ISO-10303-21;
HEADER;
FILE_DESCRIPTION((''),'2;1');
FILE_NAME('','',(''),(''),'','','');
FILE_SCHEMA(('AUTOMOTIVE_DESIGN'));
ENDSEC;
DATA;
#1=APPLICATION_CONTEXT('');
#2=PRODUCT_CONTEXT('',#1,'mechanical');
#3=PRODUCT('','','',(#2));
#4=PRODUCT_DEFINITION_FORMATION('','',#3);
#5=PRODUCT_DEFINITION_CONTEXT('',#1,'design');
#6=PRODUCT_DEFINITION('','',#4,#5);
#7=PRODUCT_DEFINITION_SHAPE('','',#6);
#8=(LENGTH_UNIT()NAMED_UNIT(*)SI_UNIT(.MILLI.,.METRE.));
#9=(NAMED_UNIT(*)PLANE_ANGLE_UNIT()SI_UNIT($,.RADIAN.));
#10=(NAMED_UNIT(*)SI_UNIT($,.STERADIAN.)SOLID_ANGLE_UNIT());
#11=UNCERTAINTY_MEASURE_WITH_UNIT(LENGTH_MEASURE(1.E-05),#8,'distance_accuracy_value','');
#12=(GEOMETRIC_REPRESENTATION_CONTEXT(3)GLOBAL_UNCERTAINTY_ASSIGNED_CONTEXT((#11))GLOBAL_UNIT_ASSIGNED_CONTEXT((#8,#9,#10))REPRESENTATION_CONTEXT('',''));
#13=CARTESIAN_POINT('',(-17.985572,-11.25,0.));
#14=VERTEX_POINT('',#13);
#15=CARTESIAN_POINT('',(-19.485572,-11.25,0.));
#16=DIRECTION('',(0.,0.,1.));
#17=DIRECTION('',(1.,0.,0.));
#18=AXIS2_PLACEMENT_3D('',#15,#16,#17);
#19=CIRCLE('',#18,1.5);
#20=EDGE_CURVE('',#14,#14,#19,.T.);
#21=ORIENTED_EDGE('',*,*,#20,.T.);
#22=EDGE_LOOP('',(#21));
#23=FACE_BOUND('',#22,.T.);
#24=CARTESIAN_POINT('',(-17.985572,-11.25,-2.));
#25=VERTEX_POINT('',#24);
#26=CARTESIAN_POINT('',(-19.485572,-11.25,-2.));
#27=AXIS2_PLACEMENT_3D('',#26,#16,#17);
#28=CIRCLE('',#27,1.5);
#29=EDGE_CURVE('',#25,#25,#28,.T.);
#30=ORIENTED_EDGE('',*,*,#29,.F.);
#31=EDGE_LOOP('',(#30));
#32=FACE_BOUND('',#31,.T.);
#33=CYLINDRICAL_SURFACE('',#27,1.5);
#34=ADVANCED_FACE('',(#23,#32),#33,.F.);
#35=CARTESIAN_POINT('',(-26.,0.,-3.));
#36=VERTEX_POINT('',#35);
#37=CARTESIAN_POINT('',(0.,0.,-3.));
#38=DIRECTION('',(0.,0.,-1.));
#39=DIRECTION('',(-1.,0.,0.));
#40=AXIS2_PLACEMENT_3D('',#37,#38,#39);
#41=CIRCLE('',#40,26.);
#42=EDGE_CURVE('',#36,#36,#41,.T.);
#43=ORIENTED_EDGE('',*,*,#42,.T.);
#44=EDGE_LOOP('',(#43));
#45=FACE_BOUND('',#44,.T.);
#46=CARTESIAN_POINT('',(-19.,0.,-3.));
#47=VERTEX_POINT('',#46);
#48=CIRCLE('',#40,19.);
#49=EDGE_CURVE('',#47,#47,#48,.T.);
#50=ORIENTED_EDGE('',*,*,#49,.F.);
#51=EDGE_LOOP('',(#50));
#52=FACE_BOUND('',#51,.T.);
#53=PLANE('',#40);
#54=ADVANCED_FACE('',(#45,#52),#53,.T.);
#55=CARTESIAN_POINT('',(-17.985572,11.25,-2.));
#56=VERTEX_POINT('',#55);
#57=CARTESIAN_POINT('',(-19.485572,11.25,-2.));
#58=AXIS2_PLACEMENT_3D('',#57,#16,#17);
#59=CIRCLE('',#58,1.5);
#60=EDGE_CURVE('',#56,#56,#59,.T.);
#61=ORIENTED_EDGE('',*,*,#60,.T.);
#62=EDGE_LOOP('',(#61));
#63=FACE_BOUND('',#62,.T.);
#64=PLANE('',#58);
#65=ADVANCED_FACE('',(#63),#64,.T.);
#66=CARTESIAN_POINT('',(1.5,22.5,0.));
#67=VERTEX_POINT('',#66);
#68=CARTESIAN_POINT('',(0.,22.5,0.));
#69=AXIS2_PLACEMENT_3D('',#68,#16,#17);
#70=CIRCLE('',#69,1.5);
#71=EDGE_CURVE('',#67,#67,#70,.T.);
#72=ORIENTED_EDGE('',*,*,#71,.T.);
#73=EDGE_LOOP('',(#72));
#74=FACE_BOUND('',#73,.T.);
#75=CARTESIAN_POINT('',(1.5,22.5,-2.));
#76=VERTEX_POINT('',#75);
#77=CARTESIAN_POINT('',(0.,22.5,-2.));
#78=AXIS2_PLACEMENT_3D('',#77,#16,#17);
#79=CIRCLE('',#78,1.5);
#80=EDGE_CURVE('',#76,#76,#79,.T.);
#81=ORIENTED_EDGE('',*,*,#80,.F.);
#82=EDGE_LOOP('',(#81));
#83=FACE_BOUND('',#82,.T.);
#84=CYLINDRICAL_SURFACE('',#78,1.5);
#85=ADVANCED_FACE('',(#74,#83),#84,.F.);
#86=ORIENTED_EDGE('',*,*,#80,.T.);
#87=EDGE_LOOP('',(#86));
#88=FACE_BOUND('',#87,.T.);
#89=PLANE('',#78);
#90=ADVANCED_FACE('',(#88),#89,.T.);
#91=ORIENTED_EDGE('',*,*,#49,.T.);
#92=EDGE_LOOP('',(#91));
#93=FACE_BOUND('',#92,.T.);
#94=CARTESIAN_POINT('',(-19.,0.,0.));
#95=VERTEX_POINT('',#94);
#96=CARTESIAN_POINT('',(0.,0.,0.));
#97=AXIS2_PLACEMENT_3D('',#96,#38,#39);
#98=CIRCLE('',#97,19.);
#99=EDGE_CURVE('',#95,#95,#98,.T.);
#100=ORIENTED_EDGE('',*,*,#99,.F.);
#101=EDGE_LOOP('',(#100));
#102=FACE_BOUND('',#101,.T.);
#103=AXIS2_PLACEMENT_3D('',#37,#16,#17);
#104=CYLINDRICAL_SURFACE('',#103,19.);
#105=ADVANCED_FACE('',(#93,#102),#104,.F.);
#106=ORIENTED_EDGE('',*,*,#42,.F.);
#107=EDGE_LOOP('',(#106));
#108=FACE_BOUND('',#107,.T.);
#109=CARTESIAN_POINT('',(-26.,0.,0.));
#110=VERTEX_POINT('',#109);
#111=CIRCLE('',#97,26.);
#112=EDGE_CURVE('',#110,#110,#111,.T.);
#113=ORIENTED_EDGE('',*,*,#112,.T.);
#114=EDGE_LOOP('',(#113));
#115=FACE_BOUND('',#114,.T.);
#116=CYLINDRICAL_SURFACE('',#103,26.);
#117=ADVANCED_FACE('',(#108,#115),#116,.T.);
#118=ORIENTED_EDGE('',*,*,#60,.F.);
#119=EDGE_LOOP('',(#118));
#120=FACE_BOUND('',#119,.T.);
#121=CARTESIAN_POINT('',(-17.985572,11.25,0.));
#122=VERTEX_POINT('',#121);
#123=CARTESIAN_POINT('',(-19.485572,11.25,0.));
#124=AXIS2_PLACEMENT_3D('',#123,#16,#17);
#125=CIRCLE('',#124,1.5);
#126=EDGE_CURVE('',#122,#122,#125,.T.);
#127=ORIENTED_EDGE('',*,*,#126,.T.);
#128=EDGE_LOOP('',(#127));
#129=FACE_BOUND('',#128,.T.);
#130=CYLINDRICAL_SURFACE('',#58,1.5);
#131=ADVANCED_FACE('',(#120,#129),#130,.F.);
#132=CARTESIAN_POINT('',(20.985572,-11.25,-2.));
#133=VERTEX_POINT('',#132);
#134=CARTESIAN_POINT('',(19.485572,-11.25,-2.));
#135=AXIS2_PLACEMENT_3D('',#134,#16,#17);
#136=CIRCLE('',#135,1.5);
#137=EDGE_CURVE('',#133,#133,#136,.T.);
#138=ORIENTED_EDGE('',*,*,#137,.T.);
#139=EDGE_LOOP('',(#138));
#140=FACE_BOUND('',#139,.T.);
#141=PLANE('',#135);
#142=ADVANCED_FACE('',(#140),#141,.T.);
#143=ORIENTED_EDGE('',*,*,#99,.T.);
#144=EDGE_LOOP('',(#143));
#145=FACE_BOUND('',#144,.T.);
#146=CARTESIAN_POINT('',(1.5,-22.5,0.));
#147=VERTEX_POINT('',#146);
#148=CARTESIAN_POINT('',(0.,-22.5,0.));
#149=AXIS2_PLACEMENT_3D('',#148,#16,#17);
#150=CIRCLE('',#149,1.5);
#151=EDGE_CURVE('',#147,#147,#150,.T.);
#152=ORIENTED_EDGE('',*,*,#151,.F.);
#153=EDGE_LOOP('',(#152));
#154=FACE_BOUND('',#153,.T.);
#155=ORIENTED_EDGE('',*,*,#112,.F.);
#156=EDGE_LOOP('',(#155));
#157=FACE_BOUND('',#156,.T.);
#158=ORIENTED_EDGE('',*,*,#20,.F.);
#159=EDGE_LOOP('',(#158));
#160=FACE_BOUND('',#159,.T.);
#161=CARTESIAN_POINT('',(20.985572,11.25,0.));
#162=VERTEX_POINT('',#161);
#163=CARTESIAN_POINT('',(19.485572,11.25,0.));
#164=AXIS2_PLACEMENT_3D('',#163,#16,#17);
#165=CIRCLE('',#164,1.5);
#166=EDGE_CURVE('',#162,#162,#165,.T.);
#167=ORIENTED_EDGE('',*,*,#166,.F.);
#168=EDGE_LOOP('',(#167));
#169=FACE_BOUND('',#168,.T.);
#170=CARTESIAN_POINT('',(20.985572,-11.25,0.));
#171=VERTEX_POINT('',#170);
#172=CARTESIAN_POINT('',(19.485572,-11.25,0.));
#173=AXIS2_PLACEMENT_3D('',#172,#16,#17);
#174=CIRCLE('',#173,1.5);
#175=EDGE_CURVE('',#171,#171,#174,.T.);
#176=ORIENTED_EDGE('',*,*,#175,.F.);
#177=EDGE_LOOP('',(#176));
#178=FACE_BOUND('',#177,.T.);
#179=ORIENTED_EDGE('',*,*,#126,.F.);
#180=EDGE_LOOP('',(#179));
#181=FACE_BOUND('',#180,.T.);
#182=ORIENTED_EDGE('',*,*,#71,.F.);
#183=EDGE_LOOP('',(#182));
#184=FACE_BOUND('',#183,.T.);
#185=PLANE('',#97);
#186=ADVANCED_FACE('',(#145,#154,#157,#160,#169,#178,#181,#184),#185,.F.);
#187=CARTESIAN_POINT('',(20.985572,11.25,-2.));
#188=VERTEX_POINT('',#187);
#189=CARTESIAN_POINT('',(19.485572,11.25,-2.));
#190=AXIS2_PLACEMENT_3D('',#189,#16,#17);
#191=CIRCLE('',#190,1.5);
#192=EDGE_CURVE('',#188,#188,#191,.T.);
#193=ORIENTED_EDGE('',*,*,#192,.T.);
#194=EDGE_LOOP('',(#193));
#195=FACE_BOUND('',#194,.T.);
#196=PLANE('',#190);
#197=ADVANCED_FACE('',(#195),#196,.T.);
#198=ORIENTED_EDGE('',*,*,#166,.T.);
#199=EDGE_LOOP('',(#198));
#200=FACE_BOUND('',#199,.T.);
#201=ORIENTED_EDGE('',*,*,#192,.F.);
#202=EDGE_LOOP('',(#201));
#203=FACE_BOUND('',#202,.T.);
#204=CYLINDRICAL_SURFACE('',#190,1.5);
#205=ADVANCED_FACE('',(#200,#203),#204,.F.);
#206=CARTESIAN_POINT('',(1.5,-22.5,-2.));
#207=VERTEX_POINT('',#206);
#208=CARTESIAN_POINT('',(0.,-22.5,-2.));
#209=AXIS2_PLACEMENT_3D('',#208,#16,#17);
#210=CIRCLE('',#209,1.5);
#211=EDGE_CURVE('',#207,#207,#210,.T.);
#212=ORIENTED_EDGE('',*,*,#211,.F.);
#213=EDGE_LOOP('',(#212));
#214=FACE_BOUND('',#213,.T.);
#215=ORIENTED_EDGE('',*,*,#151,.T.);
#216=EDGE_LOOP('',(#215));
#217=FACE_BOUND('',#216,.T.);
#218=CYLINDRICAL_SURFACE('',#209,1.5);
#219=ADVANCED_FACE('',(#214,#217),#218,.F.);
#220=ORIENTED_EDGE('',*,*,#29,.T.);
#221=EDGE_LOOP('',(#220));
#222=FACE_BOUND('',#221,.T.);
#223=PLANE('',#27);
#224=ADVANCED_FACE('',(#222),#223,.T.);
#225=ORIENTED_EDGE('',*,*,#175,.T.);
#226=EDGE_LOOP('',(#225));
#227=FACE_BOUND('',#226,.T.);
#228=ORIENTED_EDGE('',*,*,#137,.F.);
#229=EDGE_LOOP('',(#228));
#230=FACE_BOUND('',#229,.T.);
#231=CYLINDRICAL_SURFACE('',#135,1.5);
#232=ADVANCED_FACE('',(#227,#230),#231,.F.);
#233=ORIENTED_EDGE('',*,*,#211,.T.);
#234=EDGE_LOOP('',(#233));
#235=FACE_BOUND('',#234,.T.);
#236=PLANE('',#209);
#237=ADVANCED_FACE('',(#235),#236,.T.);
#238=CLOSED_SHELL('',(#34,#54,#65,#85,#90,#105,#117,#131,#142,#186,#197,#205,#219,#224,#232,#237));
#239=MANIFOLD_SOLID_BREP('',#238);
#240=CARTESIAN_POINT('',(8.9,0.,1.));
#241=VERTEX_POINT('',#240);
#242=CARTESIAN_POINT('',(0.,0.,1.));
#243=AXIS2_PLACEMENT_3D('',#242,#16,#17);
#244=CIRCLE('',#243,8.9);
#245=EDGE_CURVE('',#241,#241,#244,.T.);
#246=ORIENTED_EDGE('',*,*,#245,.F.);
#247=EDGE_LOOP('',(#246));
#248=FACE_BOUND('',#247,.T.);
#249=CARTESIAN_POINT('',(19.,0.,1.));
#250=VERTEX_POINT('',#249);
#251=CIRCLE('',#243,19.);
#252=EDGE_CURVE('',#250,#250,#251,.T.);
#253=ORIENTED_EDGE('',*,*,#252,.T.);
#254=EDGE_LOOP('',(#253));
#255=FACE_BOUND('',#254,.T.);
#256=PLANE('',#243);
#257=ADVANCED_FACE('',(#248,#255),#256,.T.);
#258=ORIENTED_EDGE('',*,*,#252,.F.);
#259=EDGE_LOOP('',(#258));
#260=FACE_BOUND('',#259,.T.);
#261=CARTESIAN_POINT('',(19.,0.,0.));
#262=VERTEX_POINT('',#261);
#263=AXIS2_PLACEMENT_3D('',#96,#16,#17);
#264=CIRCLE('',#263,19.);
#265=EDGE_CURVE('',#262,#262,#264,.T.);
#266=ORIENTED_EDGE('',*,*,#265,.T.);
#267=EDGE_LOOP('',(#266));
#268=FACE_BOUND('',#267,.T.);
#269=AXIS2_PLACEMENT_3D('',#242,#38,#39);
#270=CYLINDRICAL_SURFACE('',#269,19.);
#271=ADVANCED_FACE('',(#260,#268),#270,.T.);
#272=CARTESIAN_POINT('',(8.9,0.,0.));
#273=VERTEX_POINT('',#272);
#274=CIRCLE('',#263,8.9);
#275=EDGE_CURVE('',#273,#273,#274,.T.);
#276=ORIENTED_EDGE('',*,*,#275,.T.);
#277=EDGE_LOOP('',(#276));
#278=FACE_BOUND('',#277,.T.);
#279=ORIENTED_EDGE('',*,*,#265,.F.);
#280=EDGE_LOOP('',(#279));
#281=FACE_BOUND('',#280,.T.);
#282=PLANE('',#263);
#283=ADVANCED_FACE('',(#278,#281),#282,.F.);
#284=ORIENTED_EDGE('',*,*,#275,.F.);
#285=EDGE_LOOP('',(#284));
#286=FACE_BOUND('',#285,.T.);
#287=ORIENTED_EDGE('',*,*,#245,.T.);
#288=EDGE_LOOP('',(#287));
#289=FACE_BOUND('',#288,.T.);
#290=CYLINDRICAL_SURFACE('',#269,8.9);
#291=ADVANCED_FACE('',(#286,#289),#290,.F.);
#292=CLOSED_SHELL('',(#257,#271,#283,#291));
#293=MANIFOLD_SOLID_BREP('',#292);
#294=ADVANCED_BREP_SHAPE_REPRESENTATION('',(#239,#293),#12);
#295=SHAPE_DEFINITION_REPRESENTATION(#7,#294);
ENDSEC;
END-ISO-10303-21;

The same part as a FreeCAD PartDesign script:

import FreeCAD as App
import Part
import Sketcher
from FreeCAD import Vector
Q = App.Units.Quantity

doc = App.newDocument("Part")
body = doc.addObject("PartDesign::Body", "Body")

# Sketch on XY plane
sketch1 = body.newObject("Sketcher::SketchObject", "Sketch")
sketch1.AttachmentSupport = (doc.getObject("XY_Plane"), [""])
sketch1.MapMode = "FlatFace"
sketch1.addGeometry([
    Part.Circle(Vector(0, 0, 0), Vector(0, 0, 1), 19),
    Part.Circle(Vector(0, 0, 0), Vector(0, 0, 1), 9),
], False)
sketch1.addConstraint([
    Sketcher.Constraint("Coincident", 0, 3, -1, 1),
    Sketcher.Constraint("Coincident", 1, 3, -1, 1),
    Sketcher.Constraint("Diameter", 0, Q("38 mm")),
    Sketcher.Constraint("Diameter", 1, Q("17.8 mm")),
])
pad1 = body.newObject("PartDesign::Pad", "Pad")
pad1.Profile = sketch1
pad1.Length = 1
body2 = doc.addObject("PartDesign::Body", "Body001")

# Sketch on XY plane
sketch2 = body2.newObject("Sketcher::SketchObject", "Sketch001")
sketch2.AttachmentSupport = (doc.getObject("XY_Plane001"), [""])
sketch2.MapMode = "FlatFace"
sketch2.addGeometry([
    Part.Circle(Vector(0, 0, 0), Vector(0, 0, 1), 26),
    Part.Circle(Vector(0, 0, 0), Vector(0, 0, 1), 19),
], False)
sketch2.addConstraint([
    Sketcher.Constraint("Coincident", 0, 3, -1, 1),
    Sketcher.Constraint("Coincident", 1, 3, -1, 1),
    Sketcher.Constraint("Diameter", 0, Q("52 mm")),
    Sketcher.Constraint("Diameter", 1, Q("38 mm")),
])
pad2 = body2.newObject("PartDesign::Pad", "Pad001")
pad2.Profile = sketch2
pad2.Length = 3
pad2.Reversed = True

# Sketch on XY plane
sketch3 = body2.newObject("Sketcher::SketchObject", "Sketch002")
sketch3.AttachmentSupport = (doc.getObject("XY_Plane001"), [""])
sketch3.MapMode = "FlatFace"
sketch3.addGeometry([
    Part.Circle(Vector(0, 22.5, 0), Vector(0, 0, 1), 1.5),  # 0
    Part.Circle(Vector(19.5, 11.2, 0), Vector(0, 0, 1), 1.5),  # 1
    Part.Circle(Vector(19.5, -11.2, 0), Vector(0, 0, 1), 1.5),  # 2
    Part.Circle(Vector(0, -22.5, 0), Vector(0, 0, 1), 1.5),  # 3
    Part.Circle(Vector(-19.5, -11.2, 0), Vector(0, 0, 1), 1.5),  # 4
    Part.Circle(Vector(-19.5, 11.2, 0), Vector(0, 0, 1), 1.5),  # 5
], False)
sketch3.addConstraint([
    Sketcher.Constraint("Equal", 0, 1),
    Sketcher.Constraint("Equal", 1, 2),
    Sketcher.Constraint("Equal", 2, 3),
    Sketcher.Constraint("Equal", 3, 4),
    Sketcher.Constraint("Equal", 4, 5),
    Sketcher.Constraint("Symmetric", 0, 3, 3, 3, -1, 1),
    Sketcher.Constraint("Symmetric", 1, 3, 4, 3, -1, 1),
    Sketcher.Constraint("Symmetric", 2, 3, 5, 3, -1, 1),
    Sketcher.Constraint("Symmetric", 2, 3, 4, 3, -2),
    Sketcher.Constraint("PointOnObject", 0, 3, -2),
    Sketcher.Constraint("Diameter", 0, Q("3 mm")),
    Sketcher.Constraint("DistanceY", 3, 3, 0, 3, Q("45 mm")),
    Sketcher.Constraint("DistanceY", 2, 3, 1, 3, Q("22.5 mm")),
    Sketcher.Constraint("DistanceX", -1, 1, 1, 3, Q("19.485572 mm")),
])
pocket1 = body2.newObject("PartDesign::Pocket", "Pocket")
pocket1.Profile = sketch3
pocket1.Length = 2

doc.recompute()
